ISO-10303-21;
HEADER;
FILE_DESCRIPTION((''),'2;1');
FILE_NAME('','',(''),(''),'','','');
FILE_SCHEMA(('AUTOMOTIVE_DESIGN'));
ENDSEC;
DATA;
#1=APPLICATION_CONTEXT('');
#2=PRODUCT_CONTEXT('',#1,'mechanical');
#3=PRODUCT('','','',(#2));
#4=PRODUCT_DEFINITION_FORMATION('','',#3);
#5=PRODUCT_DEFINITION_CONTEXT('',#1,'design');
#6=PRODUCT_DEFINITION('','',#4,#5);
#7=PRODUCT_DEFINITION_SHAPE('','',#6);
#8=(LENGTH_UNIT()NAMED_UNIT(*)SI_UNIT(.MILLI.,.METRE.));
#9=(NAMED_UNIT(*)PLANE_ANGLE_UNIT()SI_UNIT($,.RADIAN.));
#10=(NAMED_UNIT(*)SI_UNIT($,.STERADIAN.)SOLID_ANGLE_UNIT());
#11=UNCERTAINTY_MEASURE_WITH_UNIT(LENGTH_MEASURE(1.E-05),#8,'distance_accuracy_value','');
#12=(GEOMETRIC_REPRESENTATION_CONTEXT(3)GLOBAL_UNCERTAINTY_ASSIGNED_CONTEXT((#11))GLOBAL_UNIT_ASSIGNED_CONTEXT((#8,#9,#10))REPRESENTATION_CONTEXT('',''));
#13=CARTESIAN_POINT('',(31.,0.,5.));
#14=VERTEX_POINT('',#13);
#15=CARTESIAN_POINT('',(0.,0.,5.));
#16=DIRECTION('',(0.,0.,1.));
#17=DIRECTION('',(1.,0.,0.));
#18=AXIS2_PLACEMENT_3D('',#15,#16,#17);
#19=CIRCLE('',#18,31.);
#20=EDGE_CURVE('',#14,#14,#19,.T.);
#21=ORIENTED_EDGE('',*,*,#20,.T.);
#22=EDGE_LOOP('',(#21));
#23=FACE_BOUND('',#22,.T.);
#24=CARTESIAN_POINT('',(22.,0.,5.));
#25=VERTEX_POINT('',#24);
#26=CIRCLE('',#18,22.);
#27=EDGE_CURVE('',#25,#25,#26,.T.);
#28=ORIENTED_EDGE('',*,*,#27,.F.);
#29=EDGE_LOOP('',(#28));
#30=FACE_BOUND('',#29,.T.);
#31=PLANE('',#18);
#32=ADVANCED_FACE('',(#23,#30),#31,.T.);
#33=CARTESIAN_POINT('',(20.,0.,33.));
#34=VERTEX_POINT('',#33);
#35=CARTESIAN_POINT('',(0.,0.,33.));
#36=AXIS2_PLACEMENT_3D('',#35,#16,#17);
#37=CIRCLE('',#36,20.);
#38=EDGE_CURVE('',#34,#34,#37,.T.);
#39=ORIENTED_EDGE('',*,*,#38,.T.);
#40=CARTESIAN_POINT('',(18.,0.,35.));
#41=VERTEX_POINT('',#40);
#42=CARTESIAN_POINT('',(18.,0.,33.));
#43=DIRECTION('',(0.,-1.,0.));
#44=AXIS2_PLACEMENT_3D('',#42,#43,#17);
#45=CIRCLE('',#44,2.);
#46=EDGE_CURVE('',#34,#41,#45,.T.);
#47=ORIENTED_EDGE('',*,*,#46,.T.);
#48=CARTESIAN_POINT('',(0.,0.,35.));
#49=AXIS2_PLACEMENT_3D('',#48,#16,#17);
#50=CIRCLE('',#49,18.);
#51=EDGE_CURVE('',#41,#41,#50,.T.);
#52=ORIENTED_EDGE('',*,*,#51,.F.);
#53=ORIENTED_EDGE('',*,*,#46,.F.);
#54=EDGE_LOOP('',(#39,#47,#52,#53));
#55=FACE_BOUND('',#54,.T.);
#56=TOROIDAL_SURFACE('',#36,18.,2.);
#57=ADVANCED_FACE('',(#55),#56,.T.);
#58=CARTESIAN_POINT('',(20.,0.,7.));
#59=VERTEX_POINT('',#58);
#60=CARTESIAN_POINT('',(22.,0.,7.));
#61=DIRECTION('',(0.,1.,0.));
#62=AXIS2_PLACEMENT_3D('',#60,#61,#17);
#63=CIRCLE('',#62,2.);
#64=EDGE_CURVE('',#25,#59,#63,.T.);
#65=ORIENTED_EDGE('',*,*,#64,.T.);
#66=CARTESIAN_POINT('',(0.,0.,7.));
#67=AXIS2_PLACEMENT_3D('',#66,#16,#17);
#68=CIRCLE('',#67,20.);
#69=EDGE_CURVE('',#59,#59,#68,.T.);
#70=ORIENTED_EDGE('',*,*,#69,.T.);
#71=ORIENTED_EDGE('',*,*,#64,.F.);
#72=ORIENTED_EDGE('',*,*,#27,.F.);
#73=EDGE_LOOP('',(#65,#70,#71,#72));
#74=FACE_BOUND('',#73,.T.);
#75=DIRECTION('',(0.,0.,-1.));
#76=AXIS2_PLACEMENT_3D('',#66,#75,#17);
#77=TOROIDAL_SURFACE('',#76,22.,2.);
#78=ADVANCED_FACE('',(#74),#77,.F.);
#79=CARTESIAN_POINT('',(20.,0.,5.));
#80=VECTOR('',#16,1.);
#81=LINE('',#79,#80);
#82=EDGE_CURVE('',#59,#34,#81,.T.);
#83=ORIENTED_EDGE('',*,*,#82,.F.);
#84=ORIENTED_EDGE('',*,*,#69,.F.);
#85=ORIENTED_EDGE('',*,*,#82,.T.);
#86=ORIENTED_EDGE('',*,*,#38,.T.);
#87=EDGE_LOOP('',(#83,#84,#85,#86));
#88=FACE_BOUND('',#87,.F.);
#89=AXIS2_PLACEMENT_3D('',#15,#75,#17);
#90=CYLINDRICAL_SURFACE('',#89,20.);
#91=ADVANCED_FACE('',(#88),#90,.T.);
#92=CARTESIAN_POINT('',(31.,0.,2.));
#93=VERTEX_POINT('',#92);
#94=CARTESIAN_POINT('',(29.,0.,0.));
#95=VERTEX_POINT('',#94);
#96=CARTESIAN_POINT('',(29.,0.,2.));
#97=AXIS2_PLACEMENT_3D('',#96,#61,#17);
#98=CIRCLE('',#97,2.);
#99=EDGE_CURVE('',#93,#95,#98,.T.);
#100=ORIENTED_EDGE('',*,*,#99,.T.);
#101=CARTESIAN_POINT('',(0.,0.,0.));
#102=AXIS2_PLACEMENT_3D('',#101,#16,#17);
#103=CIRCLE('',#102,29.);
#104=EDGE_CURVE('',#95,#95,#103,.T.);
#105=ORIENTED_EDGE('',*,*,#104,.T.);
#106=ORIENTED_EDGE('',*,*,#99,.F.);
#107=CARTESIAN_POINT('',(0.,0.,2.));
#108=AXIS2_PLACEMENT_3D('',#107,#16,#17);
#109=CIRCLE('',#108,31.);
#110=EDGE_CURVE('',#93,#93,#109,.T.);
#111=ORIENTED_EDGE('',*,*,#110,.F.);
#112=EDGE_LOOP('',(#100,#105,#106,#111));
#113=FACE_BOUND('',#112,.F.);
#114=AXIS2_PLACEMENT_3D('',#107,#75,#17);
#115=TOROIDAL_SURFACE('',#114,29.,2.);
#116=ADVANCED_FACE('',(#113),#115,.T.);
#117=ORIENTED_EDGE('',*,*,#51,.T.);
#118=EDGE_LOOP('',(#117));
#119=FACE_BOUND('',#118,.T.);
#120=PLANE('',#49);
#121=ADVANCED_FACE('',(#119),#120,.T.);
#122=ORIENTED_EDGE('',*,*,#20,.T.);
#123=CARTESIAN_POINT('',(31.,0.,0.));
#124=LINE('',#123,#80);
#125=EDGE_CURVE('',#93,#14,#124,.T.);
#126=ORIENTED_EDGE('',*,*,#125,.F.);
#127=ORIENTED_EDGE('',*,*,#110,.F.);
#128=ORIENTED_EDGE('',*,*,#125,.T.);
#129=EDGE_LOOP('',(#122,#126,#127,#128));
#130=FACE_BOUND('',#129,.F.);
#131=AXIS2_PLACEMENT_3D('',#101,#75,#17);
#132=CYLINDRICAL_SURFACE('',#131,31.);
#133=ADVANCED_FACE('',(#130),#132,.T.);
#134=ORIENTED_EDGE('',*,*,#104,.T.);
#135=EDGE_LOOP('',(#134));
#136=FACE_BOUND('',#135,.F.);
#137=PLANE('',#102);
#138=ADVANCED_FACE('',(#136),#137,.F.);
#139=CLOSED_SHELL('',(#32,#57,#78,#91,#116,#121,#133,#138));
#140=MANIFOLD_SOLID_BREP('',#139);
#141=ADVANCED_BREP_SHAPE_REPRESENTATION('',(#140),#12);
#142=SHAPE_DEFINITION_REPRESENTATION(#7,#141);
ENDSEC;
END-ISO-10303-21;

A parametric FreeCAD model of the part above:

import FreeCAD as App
import Part
import Sketcher

V = App.Vector


def edges_at(feature, points):
    """Names of the edges that pass closest to the given points."""
    edges = feature.Shape.Edges
    near = lambda p: min(range(len(edges)), key=lambda i: edges[i].distToShape(Part.Vertex(*p))[0])
    return sorted({f"Edge{near(p) + 1}" for p in points})

doc = App.newDocument("Part")
body = doc.addObject("PartDesign::Body", "Body")

# Sketch on XY plane
sketch1 = body.newObject("Sketcher::SketchObject", "Sketch")
sketch1.AttachmentSupport = (doc.getObject("XY_Plane"), [""])
sketch1.MapMode = "FlatFace"
sketch1.addGeometry(Part.Circle(V(0, 0, 0), V(0, 0, 1), 31), False)
sketch1.addConstraint([
    Sketcher.Constraint("Coincident", 0, 3, -1, 1),
    Sketcher.Constraint("Diameter", 0, 62.0),
])
pad1 = body.newObject("PartDesign::Pad", "Pad")
pad1.Profile = sketch1
pad1.Length = 5

# Sketch on XY plane
sketch2 = body.newObject("Sketcher::SketchObject", "Sketch001")
sketch2.AttachmentSupport = (doc.getObject("XY_Plane"), [""])
sketch2.MapMode = "FlatFace"
sketch2.AttachmentOffset = App.Placement(V(0, 0, 5), App.Rotation())
sketch2.addGeometry(Part.Circle(V(0, 0, 0), V(0, 0, 1), 20), False)
sketch2.addConstraint([
    Sketcher.Constraint("Coincident", 0, 3, -1, 1),
    Sketcher.Constraint("Diameter", 0, 40.0),
])
pad2 = body.newObject("PartDesign::Pad", "Pad001")
pad2.Profile = sketch2
pad2.Length = 30
doc.recompute()

fillet = body.newObject("PartDesign::Fillet", "Fillet")
fillet.Base = (pad2, edges_at(pad2, [(-20, 0, 35), (-20, 0, 5), (-31, 0, 0)]))
fillet.Radius = 2

doc.recompute()
